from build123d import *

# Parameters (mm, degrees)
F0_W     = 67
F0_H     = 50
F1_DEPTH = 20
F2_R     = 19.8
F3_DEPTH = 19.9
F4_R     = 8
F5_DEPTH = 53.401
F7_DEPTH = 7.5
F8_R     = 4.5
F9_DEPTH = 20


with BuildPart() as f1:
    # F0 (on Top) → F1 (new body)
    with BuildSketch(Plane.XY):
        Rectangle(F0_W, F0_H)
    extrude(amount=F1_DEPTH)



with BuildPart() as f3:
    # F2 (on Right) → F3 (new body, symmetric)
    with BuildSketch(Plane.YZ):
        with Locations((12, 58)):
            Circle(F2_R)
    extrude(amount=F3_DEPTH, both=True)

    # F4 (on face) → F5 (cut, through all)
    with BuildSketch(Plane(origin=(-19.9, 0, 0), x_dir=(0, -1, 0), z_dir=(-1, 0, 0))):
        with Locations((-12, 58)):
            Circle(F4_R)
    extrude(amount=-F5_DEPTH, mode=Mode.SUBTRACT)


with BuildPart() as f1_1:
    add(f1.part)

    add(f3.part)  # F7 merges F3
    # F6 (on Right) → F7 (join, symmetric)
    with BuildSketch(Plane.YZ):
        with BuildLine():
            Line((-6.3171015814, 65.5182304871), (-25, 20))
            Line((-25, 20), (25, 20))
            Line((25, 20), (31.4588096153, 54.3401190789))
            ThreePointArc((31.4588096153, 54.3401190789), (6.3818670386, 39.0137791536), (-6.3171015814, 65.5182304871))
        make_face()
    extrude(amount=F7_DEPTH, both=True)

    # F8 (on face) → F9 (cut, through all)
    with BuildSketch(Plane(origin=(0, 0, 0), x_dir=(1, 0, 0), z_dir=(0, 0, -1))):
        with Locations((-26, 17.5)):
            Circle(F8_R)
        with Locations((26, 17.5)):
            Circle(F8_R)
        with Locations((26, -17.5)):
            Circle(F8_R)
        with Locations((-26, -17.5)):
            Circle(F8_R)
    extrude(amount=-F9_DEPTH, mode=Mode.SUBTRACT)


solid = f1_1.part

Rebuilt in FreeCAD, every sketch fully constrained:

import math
import FreeCAD as App
import Part
import Sketcher
from FreeCAD import Vector


def add_polygon(sketch, points):
    """Adds a closed chain of lines whose ends are joined by coincident constraints."""
    first, n = sketch.GeometryCount, len(points)
    for a, b in zip(points, points[1:] + points[:1]):
        sketch.addGeometry(Part.LineSegment(App.Vector(*a, 0), App.Vector(*b, 0)), False)
    for i in range(n):
        sketch.addConstraint(Sketcher.Constraint("Coincident", first + i, 2, first + (i + 1) % n, 1))

doc = App.newDocument("Part")
body = doc.addObject("PartDesign::Body", "Body")

# Sketch on XY plane
sketch1 = doc.addObject("Sketcher::SketchObject", "Sketch")
body.addObject(sketch1)
sketch1.AttachmentSupport = (doc.XY_Plane, [""])
sketch1.MapMode = "FlatFace"
add_polygon(sketch1, [(-34, 25), (-34, -25), (34, -25), (34, 25)])  # lines 0-3
sketch1.addConstraint([
    Sketcher.Constraint("Vertical", 0),
    Sketcher.Constraint("Horizontal", 1),
    Sketcher.Constraint("Vertical", 2),
    Sketcher.Constraint("Horizontal", 3),
    Sketcher.Constraint("Symmetric", 0, 2, 2, 2, -1, 1),
    Sketcher.Constraint("DistanceX", 1, 1, 1, 2, 67.0),
    Sketcher.Constraint("DistanceY", 0, 2, 0, 1, 50.0),
])
pad1 = doc.addObject("PartDesign::Pad", "Pad")
body.addObject(pad1)
pad1.Profile = sketch1
pad1.Length = 20
body2 = doc.addObject("PartDesign::Body", "Body001")

# Sketch on YZ plane
sketch2 = doc.addObject("Sketcher::SketchObject", "Sketch001")
body2.addObject(sketch2)
sketch2.AttachmentSupport = (doc.getObject("YZ_Plane001"), [""])
sketch2.MapMode = "FlatFace"
sketch2.addGeometry(Part.Circle(Vector(12, 58, 0), Vector(0, 0, 1), 20), False)
sketch2.addConstraint([
    Sketcher.Constraint("Diameter", 0, 39.6),
    Sketcher.Constraint("DistanceX", -1, 1, 0, 3, 12.0),
    Sketcher.Constraint("DistanceY", -1, 1, 0, 3, 58.0),
])
pad2 = doc.addObject("PartDesign::Pad", "Pad001")
body2.addObject(pad2)
pad2.Profile = sketch2
pad2.Length = 39.8
pad2.Midplane = True

# Sketch on YZ plane
sketch3 = doc.addObject("Sketcher::SketchObject", "Sketch002")
body2.addObject(sketch3)
sketch3.AttachmentSupport = (doc.getObject("YZ_Plane001"), [""])
sketch3.MapMode = "FlatFace"
sketch3.AttachmentOffset = App.Placement(Vector(0, 0, -19.9), App.Rotation())
sketch3.addGeometry(Part.Circle(Vector(12, 58, 0), Vector(0, 0, 1), 8), False)
sketch3.addConstraint([
    Sketcher.Constraint("Diameter", 0, 16.0),
    Sketcher.Constraint("DistanceX", -1, 1, 0, 3, 12.0),
    Sketcher.Constraint("DistanceY", -1, 1, 0, 3, 58.0),
])
pocket1 = doc.addObject("PartDesign::Pocket", "Pocket")
body2.addObject(pocket1)
pocket1.Profile = sketch3
pocket1.Type = "ThroughAll"
pocket1.Reversed = True
body.AllowCompound = True
doc.recompute()

boolean = doc.addObject("PartDesign::Boolean", "Boolean")
body.addObject(boolean)
boolean.Type = "Fuse"
boolean.addObjects([body2])

# Sketch on YZ plane
sketch4 = doc.addObject("Sketcher::SketchObject", "Sketch003")
body.addObject(sketch4)
sketch4.AttachmentSupport = (doc.YZ_Plane, [""])
sketch4.MapMode = "FlatFace"
sketch4.addGeometry([
    Part.LineSegment(Vector(-6, 66, 0), Vector(-25, 20, 0)),
    Part.LineSegment(Vector(-25, 20, 0), Vector(25, 20, 0)),
    Part.LineSegment(Vector(25, 20, 0), Vector(31, 54, 0)),
    Part.ArcOfCircle(Part.Circle(Vector(12, 58, 0), Vector(0, 0, 1), 20), math.radians(158), math.radians(349)),
], False)
sketch4.addConstraint([
    Sketcher.Constraint("Coincident", 0, 2, 1, 1),
    Sketcher.Constraint("Coincident", 1, 2, 2, 1),
    Sketcher.Constraint("Tangent", 2, 2, 3, 2),
    Sketcher.Constraint("Tangent", 3, 1, 0, 1),
    Sketcher.Constraint("Horizontal", 1),
    Sketcher.Constraint("Radius", 3, 19.8),
    Sketcher.Constraint("DistanceX", 1, 1, 1, 2, 50.0),
    Sketcher.Constraint("DistanceX", -1, 1, 3, 3, 12.0),
    Sketcher.Constraint("DistanceY", -1, 1, 3, 3, 58.0),
    Sketcher.Constraint("DistanceX", 0, 2, -1, 1, 25.0),
    Sketcher.Constraint("DistanceY", -1, 1, 0, 2, 20.0),
])
pad3 = doc.addObject("PartDesign::Pad", "Pad002")
body.addObject(pad3)
pad3.Profile = sketch4
pad3.Length = 15
pad3.Midplane = True

# Sketch on XY plane
sketch5 = doc.addObject("Sketcher::SketchObject", "Sketch004")
body.addObject(sketch5)
sketch5.AttachmentSupport = (doc.XY_Plane, [""])
sketch5.MapMode = "FlatFace"
sketch5.addGeometry([
    Part.Circle(Vector(-26, -17.5, 0), Vector(0, 0, 1), 4.5),
    Part.Circle(Vector(26, -17.5, 0), Vector(0, 0, 1), 4.5),
    Part.Circle(Vector(26, 17.5, 0), Vector(0, 0, 1), 4.5),
    Part.Circle(Vector(-26, 17.5, 0), Vector(0, 0, 1), 4.5),
], False)
sketch5.addConstraint([
    Sketcher.Constraint("Equal", 0, 1),
    Sketcher.Constraint("Equal", 1, 2),
    Sketcher.Constraint("Equal", 2, 3),
    Sketcher.Constraint("Symmetric", 0, 3, 2, 3, -1, 1),
    Sketcher.Constraint("Symmetric", 1, 3, 3, 3, -1, 1),
    Sketcher.Constraint("Symmetric", 0, 3, 1, 3, -2),
    Sketcher.Constraint("Diameter", 0, 9.0),
    Sketcher.Constraint("DistanceX", 0, 3, -1, 1, 26.0),
    Sketcher.Constraint("DistanceY", 1, 3, 2, 3, 35.0),
])
pocket2 = doc.addObject("PartDesign::Pocket", "Pocket001")
body.addObject(pocket2)
pocket2.Profile = sketch5
pocket2.Type = "ThroughAll"
pocket2.Reversed = True

doc.recompute()
